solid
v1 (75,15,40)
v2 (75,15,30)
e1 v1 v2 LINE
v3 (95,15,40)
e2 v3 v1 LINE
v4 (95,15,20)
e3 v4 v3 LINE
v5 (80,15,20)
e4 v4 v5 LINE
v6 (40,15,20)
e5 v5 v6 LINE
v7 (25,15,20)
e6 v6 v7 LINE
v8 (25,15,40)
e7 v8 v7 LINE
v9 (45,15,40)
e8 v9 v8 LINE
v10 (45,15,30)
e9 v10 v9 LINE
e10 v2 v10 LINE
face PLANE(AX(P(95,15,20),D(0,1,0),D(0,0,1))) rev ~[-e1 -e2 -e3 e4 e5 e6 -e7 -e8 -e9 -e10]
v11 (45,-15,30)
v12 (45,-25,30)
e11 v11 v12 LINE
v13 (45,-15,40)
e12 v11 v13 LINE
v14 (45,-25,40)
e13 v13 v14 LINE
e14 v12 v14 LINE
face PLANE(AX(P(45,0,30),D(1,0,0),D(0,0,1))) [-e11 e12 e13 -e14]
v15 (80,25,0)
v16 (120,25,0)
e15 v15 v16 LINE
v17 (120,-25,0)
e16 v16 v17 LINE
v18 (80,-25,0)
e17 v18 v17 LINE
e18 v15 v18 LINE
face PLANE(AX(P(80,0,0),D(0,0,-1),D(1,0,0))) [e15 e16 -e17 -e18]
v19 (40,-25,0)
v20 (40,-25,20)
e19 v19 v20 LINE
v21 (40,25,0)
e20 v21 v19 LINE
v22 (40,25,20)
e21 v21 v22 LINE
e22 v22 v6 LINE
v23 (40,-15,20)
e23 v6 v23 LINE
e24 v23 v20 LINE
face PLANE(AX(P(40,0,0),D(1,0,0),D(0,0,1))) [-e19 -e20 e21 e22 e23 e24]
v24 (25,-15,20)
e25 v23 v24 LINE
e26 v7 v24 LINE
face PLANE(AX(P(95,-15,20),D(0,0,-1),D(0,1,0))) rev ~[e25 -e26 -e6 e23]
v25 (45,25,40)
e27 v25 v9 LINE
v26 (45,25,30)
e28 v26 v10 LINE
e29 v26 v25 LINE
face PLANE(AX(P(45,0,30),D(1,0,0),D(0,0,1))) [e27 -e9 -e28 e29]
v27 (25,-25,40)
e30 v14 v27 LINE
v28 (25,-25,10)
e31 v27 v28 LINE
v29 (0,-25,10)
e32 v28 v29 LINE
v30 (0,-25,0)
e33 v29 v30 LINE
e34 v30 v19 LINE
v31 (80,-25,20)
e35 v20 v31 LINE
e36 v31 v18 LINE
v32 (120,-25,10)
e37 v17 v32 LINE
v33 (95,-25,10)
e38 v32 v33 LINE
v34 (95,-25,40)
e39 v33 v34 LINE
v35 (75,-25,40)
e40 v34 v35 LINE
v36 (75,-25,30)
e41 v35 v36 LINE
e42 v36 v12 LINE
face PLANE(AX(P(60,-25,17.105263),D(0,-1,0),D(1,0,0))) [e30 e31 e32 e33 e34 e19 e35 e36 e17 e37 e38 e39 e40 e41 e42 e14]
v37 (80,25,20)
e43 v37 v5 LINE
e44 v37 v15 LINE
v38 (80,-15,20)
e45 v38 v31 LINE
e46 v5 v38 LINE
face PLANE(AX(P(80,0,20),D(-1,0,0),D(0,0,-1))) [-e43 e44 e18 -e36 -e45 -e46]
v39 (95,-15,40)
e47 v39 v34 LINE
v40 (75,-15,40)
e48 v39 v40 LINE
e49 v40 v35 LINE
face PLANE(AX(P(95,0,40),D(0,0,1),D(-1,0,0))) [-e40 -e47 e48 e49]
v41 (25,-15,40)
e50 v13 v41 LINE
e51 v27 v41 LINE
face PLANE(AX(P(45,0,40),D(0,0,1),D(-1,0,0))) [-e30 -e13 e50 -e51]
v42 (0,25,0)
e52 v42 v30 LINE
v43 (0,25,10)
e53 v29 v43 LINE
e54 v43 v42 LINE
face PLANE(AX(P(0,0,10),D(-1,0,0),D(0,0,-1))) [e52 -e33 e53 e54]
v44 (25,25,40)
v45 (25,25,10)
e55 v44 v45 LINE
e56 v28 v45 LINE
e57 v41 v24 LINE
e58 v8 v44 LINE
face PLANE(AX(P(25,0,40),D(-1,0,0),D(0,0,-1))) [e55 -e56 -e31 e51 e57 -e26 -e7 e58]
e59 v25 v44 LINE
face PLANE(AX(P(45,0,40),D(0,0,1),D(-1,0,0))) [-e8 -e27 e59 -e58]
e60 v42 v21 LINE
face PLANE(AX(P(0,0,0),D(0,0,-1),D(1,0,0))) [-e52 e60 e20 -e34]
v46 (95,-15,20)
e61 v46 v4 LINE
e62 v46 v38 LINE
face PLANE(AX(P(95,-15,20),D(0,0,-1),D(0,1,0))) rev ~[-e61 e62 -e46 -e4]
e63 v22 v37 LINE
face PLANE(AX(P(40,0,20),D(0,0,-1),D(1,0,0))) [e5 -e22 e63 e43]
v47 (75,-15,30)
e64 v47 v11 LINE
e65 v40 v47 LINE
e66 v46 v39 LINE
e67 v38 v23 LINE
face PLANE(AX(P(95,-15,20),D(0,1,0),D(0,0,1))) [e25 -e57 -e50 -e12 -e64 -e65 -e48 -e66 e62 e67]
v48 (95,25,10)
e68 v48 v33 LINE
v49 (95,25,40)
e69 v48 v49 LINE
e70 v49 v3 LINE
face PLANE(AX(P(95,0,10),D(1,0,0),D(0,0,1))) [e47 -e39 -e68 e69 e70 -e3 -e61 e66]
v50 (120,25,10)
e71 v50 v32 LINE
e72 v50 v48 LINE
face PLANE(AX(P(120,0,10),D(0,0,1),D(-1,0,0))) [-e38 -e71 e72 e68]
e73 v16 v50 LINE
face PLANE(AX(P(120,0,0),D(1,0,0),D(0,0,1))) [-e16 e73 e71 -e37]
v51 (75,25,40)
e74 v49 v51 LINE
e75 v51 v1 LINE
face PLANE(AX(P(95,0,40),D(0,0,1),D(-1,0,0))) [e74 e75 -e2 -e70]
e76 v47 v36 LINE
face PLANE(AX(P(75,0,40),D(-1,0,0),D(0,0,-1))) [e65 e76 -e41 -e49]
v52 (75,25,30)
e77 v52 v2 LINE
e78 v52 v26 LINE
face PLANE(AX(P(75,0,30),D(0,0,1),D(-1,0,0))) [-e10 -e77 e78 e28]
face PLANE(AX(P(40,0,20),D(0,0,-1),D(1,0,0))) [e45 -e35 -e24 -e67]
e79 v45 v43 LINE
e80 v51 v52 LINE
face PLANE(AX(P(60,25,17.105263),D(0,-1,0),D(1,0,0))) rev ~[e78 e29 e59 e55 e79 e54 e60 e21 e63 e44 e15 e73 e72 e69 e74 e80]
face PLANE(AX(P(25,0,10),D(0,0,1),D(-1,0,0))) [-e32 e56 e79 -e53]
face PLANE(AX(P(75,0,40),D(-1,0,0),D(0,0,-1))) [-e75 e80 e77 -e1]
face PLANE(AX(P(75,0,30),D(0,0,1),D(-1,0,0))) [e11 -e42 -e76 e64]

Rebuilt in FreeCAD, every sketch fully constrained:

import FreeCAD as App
import Part
import Sketcher
from FreeCAD import Vector
Q = App.Units.Quantity

doc = App.newDocument("Part")
params = doc.addObject("Spreadsheet::Sheet", "Params")
for row, (alias, value) in enumerate([
    ("sketch1_width", "40 mm"),
    ("sketch1_width2", "25 mm"),
    ("sketch1_width3", "20 mm"),
    ("sketch1_height", "10 mm"),
    ("pad1_length", "50 mm"),
    ("sketch2_width", "30 mm"),
    ("sketch2_height", "20 mm"),
], start=1):
    params.set(f"A{row}", alias)
    params.set(f"B{row}", "=" + value)
    params.setAlias(f"B{row}", alias)

body = doc.addObject("PartDesign::Body", "Body")

# Sketch on XZ plane
sketch1 = doc.addObject("Sketcher::SketchObject", "Sketch")
body.addObject(sketch1)
sketch1.AttachmentSupport = (doc.XZ_Plane, [""])
sketch1.MapMode = "FlatFace"
sketch1.addGeometry(Part.LineSegment(Vector(0, 10, 0), Vector(0, 0, 0)), False)
sketch1.addGeometry(Part.LineSegment(Vector(0, 0, 0), Vector(40, 0, 0)), False)
sketch1.addGeometry(Part.LineSegment(Vector(40, 0, 0), Vector(40, 20, 0)), False)
sketch1.addGeometry(Part.LineSegment(Vector(40, 20, 0), Vector(80, 20, 0)), False)
sketch1.addGeometry(Part.LineSegment(Vector(80, 20, 0), Vector(80, 0, 0)), False)
sketch1.addGeometry(Part.LineSegment(Vector(80, 0, 0), Vector(120, 0, 0)), False)
sketch1.addGeometry(Part.LineSegment(Vector(120, 0, 0), Vector(120, 10, 0)), False)
sketch1.addGeometry(Part.LineSegment(Vector(120, 10, 0), Vector(95, 10, 0)), False)
sketch1.addGeometry(Part.LineSegment(Vector(95, 10, 0), Vector(95, 40, 0)), False)
sketch1.addGeometry(Part.LineSegment(Vector(95, 40, 0), Vector(75, 40, 0)), False)
sketch1.addGeometry(Part.LineSegment(Vector(75, 40, 0), Vector(75, 30, 0)), False)
sketch1.addGeometry(Part.LineSegment(Vector(75, 30, 0), Vector(45, 30, 0)), False)
sketch1.addGeometry(Part.LineSegment(Vector(45, 30, 0), Vector(45, 40, 0)), False)
sketch1.addGeometry(Part.LineSegment(Vector(45, 40, 0), Vector(25, 40, 0)), False)
sketch1.addGeometry(Part.LineSegment(Vector(25, 40, 0), Vector(25, 10, 0)), False)
sketch1.addGeometry(Part.LineSegment(Vector(25, 10, 0), Vector(0, 10, 0)), False)
sketch1.addConstraint(Sketcher.Constraint("Coincident", 0, 2, 1, 1))
sketch1.addConstraint(Sketcher.Constraint("Coincident", 1, 2, 2, 1))
sketch1.addConstraint(Sketcher.Constraint("Coincident", 2, 2, 3, 1))
sketch1.addConstraint(Sketcher.Constraint("Coincident", 3, 2, 4, 1))
sketch1.addConstraint(Sketcher.Constraint("Coincident", 4, 2, 5, 1))
sketch1.addConstraint(Sketcher.Constraint("Coincident", 5, 2, 6, 1))
sketch1.addConstraint(Sketcher.Constraint("Coincident", 6, 2, 7, 1))
sketch1.addConstraint(Sketcher.Constraint("Coincident", 7, 2, 8, 1))
sketch1.addConstraint(Sketcher.Constraint("Coincident", 8, 2, 9, 1))
sketch1.addConstraint(Sketcher.Constraint("Coincident", 9, 2, 10, 1))
sketch1.addConstraint(Sketcher.Constraint("Coincident", 10, 2, 11, 1))
sketch1.addConstraint(Sketcher.Constraint("Coincident", 11, 2, 12, 1))
sketch1.addConstraint(Sketcher.Constraint("Coincident", 12, 2, 13, 1))
sketch1.addConstraint(Sketcher.Constraint("Coincident", 13, 2, 14, 1))
sketch1.addConstraint(Sketcher.Constraint("Coincident", 14, 2, 15, 1))
sketch1.addConstraint(Sketcher.Constraint("Coincident", 15, 2, 0, 1))
sketch1.addConstraint(Sketcher.Constraint("Vertical", 0))
sketch1.addConstraint(Sketcher.Constraint("Horizontal", 1))
sketch1.addConstraint(Sketcher.Constraint("Vertical", 2))
sketch1.addConstraint(Sketcher.Constraint("Horizontal", 3))
sketch1.addConstraint(Sketcher.Constraint("Vertical", 4))
sketch1.addConstraint(Sketcher.Constraint("Horizontal", 5))
sketch1.addConstraint(Sketcher.Constraint("Vertical", 6))
sketch1.addConstraint(Sketcher.Constraint("Horizontal", 7))
sketch1.addConstraint(Sketcher.Constraint("Vertical", 8))
sketch1.addConstraint(Sketcher.Constraint("Horizontal", 9))
sketch1.addConstraint(Sketcher.Constraint("Vertical", 10))
sketch1.addConstraint(Sketcher.Constraint("Horizontal", 11))
sketch1.addConstraint(Sketcher.Constraint("Vertical", 12))
sketch1.addConstraint(Sketcher.Constraint("Horizontal", 13))
sketch1.addConstraint(Sketcher.Constraint("Vertical", 14))
sketch1.addConstraint(Sketcher.Constraint("Horizontal", 15))
sketch1.addConstraint(Sketcher.Constraint("Coincident", 0, 2, -1, 1))
sketch1.addConstraint(Sketcher.Constraint("PointOnObject", 4, 2, -1))
sketch1.addConstraint(Sketcher.Constraint("Horizontal", 9, 2, 12, 2))
sketch1.addConstraint(Sketcher.Constraint("Horizontal", 7, 2, 14, 2))
sketch1.addConstraint(Sketcher.Constraint("Equal", 1, 3))
sketch1.addConstraint(Sketcher.Constraint("Equal", 3, 5))
sketch1.addConstraint(Sketcher.Constraint("Equal", 9, 13))
sketch1.addConstraint(Sketcher.Constraint("Equal", 7, 15))
sketch1.addConstraint(Sketcher.Constraint("Equal", 13, 2))
sketch1.addConstraint(Sketcher.Constraint("Equal", 11, 8))
sketch1.addConstraint(Sketcher.Constraint("Equal", 6, 10))
sketch1.addConstraint(Sketcher.Constraint("DistanceX", 1, 1, 1, 2, Q("40 mm")))
sketch1.addConstraint(Sketcher.Constraint("DistanceX", 7, 2, 7, 1, Q("25 mm")))
sketch1.addConstraint(Sketcher.Constraint("DistanceX", 9, 2, 9, 1, Q("20 mm")))
sketch1.addConstraint(Sketcher.Constraint("DistanceY", 0, 2, 0, 1, Q("10 mm")))
sketch1.setExpression("Constraints[43]", "Params.sketch1_width")
sketch1.setExpression("Constraints[44]", "Params.sketch1_width2")
sketch1.setExpression("Constraints[45]", "Params.sketch1_width3")
sketch1.setExpression("Constraints[46]", "Params.sketch1_height")
pad1 = doc.addObject("PartDesign::Pad", "Pad")
body.addObject(pad1)
pad1.Profile = sketch1
pad1.setExpression("Length", "Params.pad1_length")
pad1.Midplane = True

# Sketch on YZ plane
sketch2 = doc.addObject("Sketcher::SketchObject", "Sketch001")
body.addObject(sketch2)
sketch2.AttachmentSupport = (doc.YZ_Plane, [""])
sketch2.MapMode = "FlatFace"
sketch2.AttachmentOffset = App.Placement(Vector(0, 0, 95), App.Rotation())
sketch2.addGeometry(Part.LineSegment(Vector(-15, 40, 0), Vector(-15, 20, 0)), False)
sketch2.addGeometry(Part.LineSegment(Vector(-15, 20, 0), Vector(15, 20, 0)), False)
sketch2.addGeometry(Part.LineSegment(Vector(15, 20, 0), Vector(15, 40, 0)), False)
sketch2.addGeometry(Part.LineSegment(Vector(15, 40, 0), Vector(-15, 40, 0)), False)
sketch2.addConstraint(Sketcher.Constraint("Coincident", 0, 2, 1, 1))
sketch2.addConstraint(Sketcher.Constraint("Coincident", 1, 2, 2, 1))
sketch2.addConstraint(Sketcher.Constraint("Coincident", 2, 2, 3, 1))
sketch2.addConstraint(Sketcher.Constraint("Coincident", 3, 2, 0, 1))
sketch2.addConstraint(Sketcher.Constraint("Vertical", 0))
sketch2.addConstraint(Sketcher.Constraint("Horizontal", 1))
sketch2.addConstraint(Sketcher.Constraint("Vertical", 2))
sketch2.addConstraint(Sketcher.Constraint("Horizontal", 3))
sketch2.addConstraint(Sketcher.Constraint("DistanceX", 1, 1, 1, 2, Q("30 mm")))
sketch2.addConstraint(Sketcher.Constraint("DistanceY", 0, 2, 0, 1, Q("20 mm")))
sketch2.addConstraint(Sketcher.Constraint("DistanceX", 0, 2, -1, 1, Q("15 mm")))
sketch2.addConstraint(Sketcher.Constraint("DistanceY", -1, 1, 0, 2, Q("20 mm")))
sketch2.setExpression("Constraints[8]", "Params.sketch2_width")
sketch2.setExpression("Constraints[9]", "Params.sketch2_height")
pocket1 = doc.addObject("PartDesign::Pocket", "Pocket")
body.addObject(pocket1)
pocket1.Profile = sketch2
pocket1.Type = "ThroughAll"

doc.recompute()
